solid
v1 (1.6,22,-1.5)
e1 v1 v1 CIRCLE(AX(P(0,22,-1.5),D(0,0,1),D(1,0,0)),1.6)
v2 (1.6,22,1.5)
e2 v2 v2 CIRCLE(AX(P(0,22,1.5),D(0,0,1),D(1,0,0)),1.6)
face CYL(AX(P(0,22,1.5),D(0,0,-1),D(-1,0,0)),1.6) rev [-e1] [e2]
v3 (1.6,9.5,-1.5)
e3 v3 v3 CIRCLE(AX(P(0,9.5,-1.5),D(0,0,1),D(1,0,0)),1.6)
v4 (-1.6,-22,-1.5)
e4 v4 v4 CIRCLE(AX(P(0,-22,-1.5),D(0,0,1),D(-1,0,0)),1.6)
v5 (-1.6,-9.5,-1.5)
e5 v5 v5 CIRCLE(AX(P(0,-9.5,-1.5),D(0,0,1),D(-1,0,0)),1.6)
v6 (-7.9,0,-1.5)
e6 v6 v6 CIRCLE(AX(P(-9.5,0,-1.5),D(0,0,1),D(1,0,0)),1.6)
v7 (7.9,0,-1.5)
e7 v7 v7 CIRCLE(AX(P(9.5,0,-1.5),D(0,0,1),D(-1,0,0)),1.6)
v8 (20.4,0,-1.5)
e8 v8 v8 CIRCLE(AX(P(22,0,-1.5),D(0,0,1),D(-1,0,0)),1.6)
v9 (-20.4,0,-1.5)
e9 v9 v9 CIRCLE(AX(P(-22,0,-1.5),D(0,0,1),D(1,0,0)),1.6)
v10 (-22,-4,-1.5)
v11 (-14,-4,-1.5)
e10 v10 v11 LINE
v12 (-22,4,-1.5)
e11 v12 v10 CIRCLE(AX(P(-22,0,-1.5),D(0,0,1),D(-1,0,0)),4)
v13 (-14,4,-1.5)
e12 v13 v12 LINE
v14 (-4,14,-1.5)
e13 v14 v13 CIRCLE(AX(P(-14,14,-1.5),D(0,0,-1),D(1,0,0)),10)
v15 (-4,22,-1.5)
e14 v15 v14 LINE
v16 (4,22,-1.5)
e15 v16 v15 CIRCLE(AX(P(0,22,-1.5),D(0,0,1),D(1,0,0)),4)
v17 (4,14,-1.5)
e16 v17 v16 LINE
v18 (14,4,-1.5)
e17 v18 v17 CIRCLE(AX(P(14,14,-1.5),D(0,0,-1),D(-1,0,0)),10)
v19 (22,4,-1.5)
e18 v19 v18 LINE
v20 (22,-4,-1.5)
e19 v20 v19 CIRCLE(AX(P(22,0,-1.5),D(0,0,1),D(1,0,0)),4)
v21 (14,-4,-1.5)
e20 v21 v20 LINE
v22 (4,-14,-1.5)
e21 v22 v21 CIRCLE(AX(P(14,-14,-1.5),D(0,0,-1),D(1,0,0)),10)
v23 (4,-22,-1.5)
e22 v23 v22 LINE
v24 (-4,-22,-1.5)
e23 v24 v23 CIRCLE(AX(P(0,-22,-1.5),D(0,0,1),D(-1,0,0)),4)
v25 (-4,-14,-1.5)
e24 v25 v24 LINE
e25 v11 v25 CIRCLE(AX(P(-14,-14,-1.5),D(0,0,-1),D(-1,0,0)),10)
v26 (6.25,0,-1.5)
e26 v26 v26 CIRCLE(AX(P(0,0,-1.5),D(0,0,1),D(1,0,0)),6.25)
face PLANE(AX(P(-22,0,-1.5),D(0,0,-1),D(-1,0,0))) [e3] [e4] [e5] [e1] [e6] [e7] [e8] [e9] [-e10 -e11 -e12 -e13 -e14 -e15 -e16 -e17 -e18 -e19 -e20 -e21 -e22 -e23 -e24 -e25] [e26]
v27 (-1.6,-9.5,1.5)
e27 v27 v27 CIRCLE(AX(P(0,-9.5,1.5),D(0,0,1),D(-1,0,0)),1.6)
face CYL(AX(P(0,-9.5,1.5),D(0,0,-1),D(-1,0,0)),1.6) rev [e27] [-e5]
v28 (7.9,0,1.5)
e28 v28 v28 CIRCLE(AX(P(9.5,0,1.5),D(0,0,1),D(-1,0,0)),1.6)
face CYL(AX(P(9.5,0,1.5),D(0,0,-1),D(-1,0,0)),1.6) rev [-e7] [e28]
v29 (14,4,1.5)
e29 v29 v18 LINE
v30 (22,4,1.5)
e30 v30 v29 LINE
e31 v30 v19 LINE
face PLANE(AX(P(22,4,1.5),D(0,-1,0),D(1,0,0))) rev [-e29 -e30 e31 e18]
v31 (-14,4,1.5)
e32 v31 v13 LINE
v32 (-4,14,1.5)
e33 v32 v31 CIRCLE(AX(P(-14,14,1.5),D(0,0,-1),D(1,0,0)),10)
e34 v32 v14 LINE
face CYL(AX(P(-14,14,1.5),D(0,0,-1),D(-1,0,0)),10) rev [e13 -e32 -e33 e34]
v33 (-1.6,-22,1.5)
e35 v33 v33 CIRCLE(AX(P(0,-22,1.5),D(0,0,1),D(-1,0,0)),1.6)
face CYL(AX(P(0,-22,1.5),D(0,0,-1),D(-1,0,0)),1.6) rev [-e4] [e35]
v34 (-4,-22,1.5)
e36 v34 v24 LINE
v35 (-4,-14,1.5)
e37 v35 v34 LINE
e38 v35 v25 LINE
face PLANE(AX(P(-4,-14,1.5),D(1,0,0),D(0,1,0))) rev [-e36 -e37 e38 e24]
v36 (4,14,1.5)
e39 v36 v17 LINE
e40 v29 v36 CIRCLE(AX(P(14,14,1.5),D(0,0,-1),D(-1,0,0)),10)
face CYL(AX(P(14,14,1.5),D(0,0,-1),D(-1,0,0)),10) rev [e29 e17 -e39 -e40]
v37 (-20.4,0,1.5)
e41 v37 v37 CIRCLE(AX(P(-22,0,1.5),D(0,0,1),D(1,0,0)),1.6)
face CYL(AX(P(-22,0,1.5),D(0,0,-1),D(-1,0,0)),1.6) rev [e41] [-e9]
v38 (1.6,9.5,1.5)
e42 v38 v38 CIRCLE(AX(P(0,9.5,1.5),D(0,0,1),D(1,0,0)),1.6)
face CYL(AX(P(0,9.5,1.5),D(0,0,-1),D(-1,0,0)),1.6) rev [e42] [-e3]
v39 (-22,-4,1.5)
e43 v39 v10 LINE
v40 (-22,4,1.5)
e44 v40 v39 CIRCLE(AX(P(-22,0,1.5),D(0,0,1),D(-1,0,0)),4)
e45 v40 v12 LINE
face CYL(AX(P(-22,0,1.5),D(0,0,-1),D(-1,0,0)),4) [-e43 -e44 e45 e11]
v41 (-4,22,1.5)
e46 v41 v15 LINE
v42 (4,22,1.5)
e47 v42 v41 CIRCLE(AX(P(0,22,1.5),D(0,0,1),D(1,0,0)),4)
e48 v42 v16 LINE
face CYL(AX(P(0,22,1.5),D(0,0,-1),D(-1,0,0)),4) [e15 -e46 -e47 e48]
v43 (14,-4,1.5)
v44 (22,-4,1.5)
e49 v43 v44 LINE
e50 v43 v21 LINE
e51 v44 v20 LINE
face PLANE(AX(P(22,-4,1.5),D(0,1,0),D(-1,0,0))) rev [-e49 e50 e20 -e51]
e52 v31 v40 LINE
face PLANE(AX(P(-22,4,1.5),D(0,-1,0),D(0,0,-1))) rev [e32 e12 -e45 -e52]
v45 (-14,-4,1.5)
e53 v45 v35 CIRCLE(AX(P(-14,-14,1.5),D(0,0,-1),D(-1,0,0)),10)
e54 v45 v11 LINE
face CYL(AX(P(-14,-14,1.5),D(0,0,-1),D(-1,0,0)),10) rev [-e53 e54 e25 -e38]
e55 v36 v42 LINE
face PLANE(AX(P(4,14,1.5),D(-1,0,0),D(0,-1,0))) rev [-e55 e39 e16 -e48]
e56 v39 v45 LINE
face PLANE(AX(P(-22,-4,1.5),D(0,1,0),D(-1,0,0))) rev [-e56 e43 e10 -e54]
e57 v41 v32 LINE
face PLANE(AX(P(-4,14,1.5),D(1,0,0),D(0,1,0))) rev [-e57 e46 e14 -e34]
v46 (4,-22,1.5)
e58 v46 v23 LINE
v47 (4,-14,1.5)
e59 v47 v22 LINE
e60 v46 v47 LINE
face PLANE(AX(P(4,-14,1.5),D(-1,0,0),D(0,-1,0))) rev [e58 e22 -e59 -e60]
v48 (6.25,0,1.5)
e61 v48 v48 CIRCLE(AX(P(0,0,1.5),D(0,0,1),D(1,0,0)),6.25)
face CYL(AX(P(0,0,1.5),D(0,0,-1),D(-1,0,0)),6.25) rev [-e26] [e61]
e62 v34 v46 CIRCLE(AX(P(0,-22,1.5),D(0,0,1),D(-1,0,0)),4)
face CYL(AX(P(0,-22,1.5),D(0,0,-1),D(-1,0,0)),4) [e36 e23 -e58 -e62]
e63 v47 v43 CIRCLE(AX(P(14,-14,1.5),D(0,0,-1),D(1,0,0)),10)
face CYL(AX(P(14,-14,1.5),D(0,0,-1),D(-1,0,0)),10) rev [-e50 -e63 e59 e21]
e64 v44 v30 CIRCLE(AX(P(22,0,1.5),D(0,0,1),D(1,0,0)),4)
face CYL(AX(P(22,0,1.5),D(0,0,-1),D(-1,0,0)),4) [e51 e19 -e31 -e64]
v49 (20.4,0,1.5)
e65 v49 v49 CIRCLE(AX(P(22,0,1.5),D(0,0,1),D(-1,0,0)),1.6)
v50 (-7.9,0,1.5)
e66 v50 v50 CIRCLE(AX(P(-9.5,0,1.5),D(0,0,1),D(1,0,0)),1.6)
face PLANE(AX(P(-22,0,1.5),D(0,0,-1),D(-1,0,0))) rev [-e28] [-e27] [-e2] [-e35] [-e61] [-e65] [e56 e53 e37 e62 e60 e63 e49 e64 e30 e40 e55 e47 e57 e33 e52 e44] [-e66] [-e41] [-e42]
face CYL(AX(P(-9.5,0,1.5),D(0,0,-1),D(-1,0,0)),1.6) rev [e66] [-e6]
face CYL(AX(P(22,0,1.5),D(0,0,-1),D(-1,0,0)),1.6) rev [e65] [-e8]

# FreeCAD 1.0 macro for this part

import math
import FreeCAD as App
import Part
import Sketcher

V = App.Vector

doc = App.newDocument("Part")
body = doc.addObject("PartDesign::Body", "Body")

sketch1 = body.newObject("Sketcher::SketchObject", "Sketch")
sketch1.AttachmentSupport = (doc.getObject("XY_Plane"), [""])
sketch1.MapMode = "FlatFace"
sketch1.addGeometry([
    Part.LineSegment(V(-14, 4, 0), V(-22, 4, 0)),
    Part.ArcOfCircle(Part.Circle(V(-22, 0, 0), V(0, 0, 1), 4), math.radians(90), math.radians(270)),
    Part.LineSegment(V(-22, -4, 0), V(-14, -4, 0)),
    Part.ArcOfCircle(Part.Circle(V(-14, -14, 0), V(0, 0, 1), 10), math.radians(0), math.radians(90)),
    Part.LineSegment(V(-4, -14, 0), V(-4, -22, 0)),
    Part.ArcOfCircle(Part.Circle(V(0, -22, 0), V(0, 0, 1), 4), math.radians(180), math.radians(360)),
    Part.LineSegment(V(4, -22, 0), V(4, -14, 0)),
    Part.ArcOfCircle(Part.Circle(V(14, -14, 0), V(0, 0, 1), 10), math.radians(90), math.radians(180)),
    Part.LineSegment(V(14, -4, 0), V(22, -4, 0)),
    Part.ArcOfCircle(Part.Circle(V(22, 0, 0), V(0, 0, 1), 4), math.radians(-90), math.radians(90)),
    Part.LineSegment(V(22, 4, 0), V(14, 4, 0)),
    Part.ArcOfCircle(Part.Circle(V(14, 14, 0), V(0, 0, 1), 10), math.radians(180), math.radians(270)),
    Part.LineSegment(V(4, 14, 0), V(4, 22, 0)),
    Part.ArcOfCircle(Part.Circle(V(0, 22, 0), V(0, 0, 1), 4), math.radians(0), math.radians(180)),
    Part.LineSegment(V(-4, 22, 0), V(-4, 14, 0)),
    Part.ArcOfCircle(Part.Circle(V(-14, 14, 0), V(0, 0, 1), 10), math.radians(-90), math.radians(0)),
    Part.Circle(V(0, -22, 0), V(0, 0, 1), 1.6),
    Part.Circle(V(0, -9.5, 0), V(0, 0, 1), 1.6),
    Part.Circle(V(22, 0, 0), V(0, 0, 1), 1.6),
    Part.Circle(V(9.5, 0, 0), V(0, 0, 1), 1.6),
    Part.Circle(V(0, 0, 0), V(0, 0, 1), 6.2),
    Part.Circle(V(-9.5, 0, 0), V(0, 0, 1), 1.6),
    Part.Circle(V(0, 9.5, 0), V(0, 0, 1), 1.6),
    Part.Circle(V(-22, 0, 0), V(0, 0, 1), 1.6),
    Part.Circle(V(0, 22, 0), V(0, 0, 1), 1.6),
], False)
sketch1.addConstraint([
    Sketcher.Constraint("Tangent", 0, 2, 1, 1),
    Sketcher.Constraint("Tangent", 1, 2, 2, 1),
    Sketcher.Constraint("Tangent", 2, 2, 3, 2),
    Sketcher.Constraint("Tangent", 3, 1, 4, 1),
    Sketcher.Constraint("Tangent", 4, 2, 5, 1),
    Sketcher.Constraint("Tangent", 5, 2, 6, 1),
    Sketcher.Constraint("Tangent", 6, 2, 7, 2),
    Sketcher.Constraint("Tangent", 7, 1, 8, 1),
    Sketcher.Constraint("Tangent", 8, 2, 9, 1),
    Sketcher.Constraint("Tangent", 9, 2, 10, 1),
    Sketcher.Constraint("Tangent", 10, 2, 11, 2),
    Sketcher.Constraint("Tangent", 11, 1, 12, 1),
    Sketcher.Constraint("Tangent", 12, 2, 13, 1),
    Sketcher.Constraint("Tangent", 13, 2, 14, 1),
    Sketcher.Constraint("Tangent", 14, 2, 15, 2),
    Sketcher.Constraint("Tangent", 15, 1, 0, 1),
    Sketcher.Constraint("Horizontal", 0),
    Sketcher.Constraint("Horizontal", 2),
    Sketcher.Constraint("Vertical", 4),
    Sketcher.Constraint("Vertical", 6),
    Sketcher.Constraint("Horizontal", 8),
    Sketcher.Constraint("Horizontal", 10),
    Sketcher.Constraint("Vertical", 12),
    Sketcher.Constraint("Vertical", 14),
    Sketcher.Constraint("Coincident", 20, 3, -1, 1),
    Sketcher.Constraint("Coincident", 16, 3, 5, 3),
    Sketcher.Constraint("Coincident", 18, 3, 9, 3),
    Sketcher.Constraint("Coincident", 23, 3, 1, 3),
    Sketcher.Constraint("Coincident", 24, 3, 13, 3),
    Sketcher.Constraint("Equal", 1, 5),
    Sketcher.Constraint("Equal", 3, 7),
    Sketcher.Constraint("Equal", 5, 9),
    Sketcher.Constraint("Equal", 7, 11),
    Sketcher.Constraint("Equal", 9, 13),
    Sketcher.Constraint("Equal", 11, 15),
    Sketcher.Constraint("Equal", 16, 17),
    Sketcher.Constraint("Equal", 17, 18),
    Sketcher.Constraint("Equal", 18, 19),
    Sketcher.Constraint("Equal", 19, 21),
    Sketcher.Constraint("Equal", 21, 22),
    Sketcher.Constraint("Equal", 22, 23),
    Sketcher.Constraint("Equal", 23, 24),
    Sketcher.Constraint("Symmetric", 1, 3, 9, 3, -1, 1),
    Sketcher.Constraint("Symmetric", 5, 3, 13, 3, -1, 1),
    Sketcher.Constraint("Symmetric", 19, 3, 21, 3, -1, 1),
    Sketcher.Constraint("Symmetric", 17, 3, 22, 3, -1, 1),
    Sketcher.Constraint("Symmetric", 3, 3, 7, 3, -2),
    Sketcher.Constraint("PointOnObject", 17, 3, -2),
    Sketcher.Constraint("PointOnObject", 19, 3, -1),
    Sketcher.Constraint("Equal", 10, 4),
    Sketcher.Constraint("Radius", 1, 4.0),
    Sketcher.Constraint("Radius", 3, 10.0),
    Sketcher.Constraint("Diameter", 16, 3.2),
    Sketcher.Constraint("Diameter", 20, 12.5),
    Sketcher.Constraint("DistanceX", 0, 2, 0, 1, 8.0),
    Sketcher.Constraint("DistanceY", 17, 3, -1, 1, 9.5),
    Sketcher.Constraint("DistanceX", -1, 1, 19, 3, 9.5),
])
pad1 = body.newObject("PartDesign::Pad", "Pad")
pad1.Profile = sketch1
pad1.Length = 3
pad1.Midplane = True

doc.recompute()
